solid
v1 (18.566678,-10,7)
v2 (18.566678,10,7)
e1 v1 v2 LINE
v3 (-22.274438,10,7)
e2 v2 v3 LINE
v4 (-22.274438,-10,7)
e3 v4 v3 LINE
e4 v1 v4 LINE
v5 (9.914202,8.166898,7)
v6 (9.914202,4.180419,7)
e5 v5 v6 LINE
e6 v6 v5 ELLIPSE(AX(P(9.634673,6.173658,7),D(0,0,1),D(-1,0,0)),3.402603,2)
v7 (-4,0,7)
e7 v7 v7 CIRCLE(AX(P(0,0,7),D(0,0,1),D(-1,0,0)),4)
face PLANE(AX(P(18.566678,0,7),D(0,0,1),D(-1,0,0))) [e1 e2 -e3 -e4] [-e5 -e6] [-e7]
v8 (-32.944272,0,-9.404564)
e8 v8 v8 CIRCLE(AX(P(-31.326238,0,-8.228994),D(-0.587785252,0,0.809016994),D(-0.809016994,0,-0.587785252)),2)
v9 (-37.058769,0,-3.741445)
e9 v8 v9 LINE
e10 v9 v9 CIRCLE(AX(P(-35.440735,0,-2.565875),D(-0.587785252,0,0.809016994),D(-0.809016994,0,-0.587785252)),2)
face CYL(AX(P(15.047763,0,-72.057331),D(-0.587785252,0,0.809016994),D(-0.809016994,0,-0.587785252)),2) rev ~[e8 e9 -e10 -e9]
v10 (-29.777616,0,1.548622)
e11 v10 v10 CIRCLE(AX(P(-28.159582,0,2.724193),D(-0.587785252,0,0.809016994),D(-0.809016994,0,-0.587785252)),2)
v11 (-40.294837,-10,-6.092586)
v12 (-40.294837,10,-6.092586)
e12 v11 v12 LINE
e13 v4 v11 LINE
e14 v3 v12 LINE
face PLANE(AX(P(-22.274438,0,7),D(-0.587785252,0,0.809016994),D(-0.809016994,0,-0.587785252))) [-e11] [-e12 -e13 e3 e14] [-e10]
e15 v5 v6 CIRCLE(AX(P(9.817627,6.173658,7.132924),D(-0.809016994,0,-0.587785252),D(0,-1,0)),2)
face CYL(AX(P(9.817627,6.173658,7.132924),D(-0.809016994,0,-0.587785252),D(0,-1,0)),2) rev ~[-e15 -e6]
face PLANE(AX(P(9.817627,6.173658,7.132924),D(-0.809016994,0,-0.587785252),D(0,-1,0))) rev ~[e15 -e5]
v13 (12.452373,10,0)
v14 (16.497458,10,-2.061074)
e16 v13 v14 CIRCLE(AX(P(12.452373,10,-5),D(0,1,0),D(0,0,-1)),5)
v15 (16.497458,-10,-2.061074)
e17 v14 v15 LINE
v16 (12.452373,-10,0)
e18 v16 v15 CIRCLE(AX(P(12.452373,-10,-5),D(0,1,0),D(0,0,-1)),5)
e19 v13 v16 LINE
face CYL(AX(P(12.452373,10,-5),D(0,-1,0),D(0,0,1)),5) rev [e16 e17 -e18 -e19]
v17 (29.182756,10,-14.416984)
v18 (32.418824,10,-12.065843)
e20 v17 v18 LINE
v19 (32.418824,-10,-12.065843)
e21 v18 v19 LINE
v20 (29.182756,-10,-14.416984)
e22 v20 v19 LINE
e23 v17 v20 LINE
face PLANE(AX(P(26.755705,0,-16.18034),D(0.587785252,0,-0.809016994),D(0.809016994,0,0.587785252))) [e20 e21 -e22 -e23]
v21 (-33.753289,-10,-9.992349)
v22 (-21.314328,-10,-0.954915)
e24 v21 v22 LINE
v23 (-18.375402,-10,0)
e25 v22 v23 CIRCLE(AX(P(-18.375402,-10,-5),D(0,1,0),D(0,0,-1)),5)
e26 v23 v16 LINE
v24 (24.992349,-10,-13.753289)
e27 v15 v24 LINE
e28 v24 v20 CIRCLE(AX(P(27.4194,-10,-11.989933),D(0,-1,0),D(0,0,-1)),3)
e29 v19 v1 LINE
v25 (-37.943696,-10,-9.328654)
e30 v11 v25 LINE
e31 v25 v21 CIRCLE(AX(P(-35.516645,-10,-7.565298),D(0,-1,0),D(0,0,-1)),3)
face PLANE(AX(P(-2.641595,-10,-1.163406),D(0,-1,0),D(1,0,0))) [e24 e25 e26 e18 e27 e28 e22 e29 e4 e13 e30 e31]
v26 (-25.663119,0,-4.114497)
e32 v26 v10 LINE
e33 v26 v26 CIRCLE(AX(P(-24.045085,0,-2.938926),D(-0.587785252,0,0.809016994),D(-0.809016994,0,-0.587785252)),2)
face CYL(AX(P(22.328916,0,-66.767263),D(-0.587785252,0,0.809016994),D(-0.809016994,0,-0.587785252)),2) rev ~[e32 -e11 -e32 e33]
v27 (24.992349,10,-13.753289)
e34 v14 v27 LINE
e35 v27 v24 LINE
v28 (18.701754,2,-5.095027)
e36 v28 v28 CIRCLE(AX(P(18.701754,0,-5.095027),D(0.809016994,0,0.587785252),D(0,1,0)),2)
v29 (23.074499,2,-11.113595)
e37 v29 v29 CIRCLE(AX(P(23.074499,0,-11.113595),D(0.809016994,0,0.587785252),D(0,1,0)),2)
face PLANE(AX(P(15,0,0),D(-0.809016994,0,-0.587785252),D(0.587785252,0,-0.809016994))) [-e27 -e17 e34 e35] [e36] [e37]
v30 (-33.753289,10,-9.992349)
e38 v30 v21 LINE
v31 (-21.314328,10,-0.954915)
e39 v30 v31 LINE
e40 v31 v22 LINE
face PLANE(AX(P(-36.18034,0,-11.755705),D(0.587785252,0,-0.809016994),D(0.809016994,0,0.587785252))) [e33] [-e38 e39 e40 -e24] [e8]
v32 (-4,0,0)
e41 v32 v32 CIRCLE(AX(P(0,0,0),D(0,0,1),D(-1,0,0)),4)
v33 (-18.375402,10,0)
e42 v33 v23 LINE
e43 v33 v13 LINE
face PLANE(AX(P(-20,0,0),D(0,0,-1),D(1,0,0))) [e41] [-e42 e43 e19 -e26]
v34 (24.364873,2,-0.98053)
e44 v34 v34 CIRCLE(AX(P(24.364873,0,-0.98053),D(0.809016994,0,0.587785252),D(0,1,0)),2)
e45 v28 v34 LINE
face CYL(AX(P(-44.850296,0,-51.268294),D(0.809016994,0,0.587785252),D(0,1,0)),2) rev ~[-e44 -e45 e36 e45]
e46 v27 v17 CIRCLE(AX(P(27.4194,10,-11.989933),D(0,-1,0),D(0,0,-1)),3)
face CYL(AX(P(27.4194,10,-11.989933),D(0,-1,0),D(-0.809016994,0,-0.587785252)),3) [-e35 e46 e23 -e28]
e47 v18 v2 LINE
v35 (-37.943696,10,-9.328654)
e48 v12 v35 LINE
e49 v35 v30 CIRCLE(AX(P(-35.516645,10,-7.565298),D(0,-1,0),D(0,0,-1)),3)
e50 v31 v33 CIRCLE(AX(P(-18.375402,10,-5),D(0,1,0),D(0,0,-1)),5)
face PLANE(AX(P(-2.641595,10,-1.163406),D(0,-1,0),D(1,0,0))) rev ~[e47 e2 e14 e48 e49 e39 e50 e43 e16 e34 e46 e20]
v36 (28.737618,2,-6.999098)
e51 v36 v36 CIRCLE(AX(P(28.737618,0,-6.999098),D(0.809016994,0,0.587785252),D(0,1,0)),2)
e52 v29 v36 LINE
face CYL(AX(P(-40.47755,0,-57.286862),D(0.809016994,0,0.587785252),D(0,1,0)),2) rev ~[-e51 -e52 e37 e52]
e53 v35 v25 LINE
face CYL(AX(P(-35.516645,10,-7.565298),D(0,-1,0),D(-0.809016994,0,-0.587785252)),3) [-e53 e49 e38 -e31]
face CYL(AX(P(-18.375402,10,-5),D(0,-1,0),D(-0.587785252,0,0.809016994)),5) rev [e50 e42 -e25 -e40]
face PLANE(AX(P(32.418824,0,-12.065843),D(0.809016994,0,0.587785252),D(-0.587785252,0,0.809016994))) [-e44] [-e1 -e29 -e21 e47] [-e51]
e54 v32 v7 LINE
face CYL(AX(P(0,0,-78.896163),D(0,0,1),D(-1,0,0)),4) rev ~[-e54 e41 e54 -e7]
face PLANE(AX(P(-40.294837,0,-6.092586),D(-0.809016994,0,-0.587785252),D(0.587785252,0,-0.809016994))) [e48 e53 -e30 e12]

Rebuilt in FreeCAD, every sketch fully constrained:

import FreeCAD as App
import Part
import Sketcher
Q = App.Units.Quantity


def edges_at(feature, points):
    """Names of the edges that pass closest to the given points."""
    edges = feature.Shape.Edges
    near = lambda p: min(range(len(edges)), key=lambda i: edges[i].distToShape(Part.Vertex(*p))[0])
    return sorted({f"Edge{near(p) + 1}" for p in points})

doc = App.newDocument("Part")
body = doc.addObject("PartDesign::Body", "Body")

# Sketch on XZ plane
sketch1 = doc.addObject("Sketcher::SketchObject", "Sketch")
body.addObject(sketch1)
sketch1.AttachmentSupport = (doc.XZ_Plane, [""])
sketch1.MapMode = "FlatFace"
sketch1.addGeometry(Part.LineSegment(App.Vector(-40, -6, 0), App.Vector(-36, -12, 0)), False)
sketch1.addGeometry(Part.LineSegment(App.Vector(-36, -12, 0), App.Vector(-20, 0, 0)), False)
sketch1.addGeometry(Part.LineSegment(App.Vector(-20, 0, 0), App.Vector(15, 0, 0)), False)
sketch1.addGeometry(Part.LineSegment(App.Vector(15, 0, 0), App.Vector(27, -16, 0)), False)
sketch1.addGeometry(Part.LineSegment(App.Vector(27, -16, 0), App.Vector(32, -12, 0)), False)
sketch1.addGeometry(Part.LineSegment(App.Vector(32, -12, 0), App.Vector(19, 7, 0)), False)
sketch1.addGeometry(Part.LineSegment(App.Vector(19, 7, 0), App.Vector(-22, 7, 0)), False)
sketch1.addGeometry(Part.LineSegment(App.Vector(-22, 7, 0), App.Vector(-40, -6, 0)), False)
sketch1.addConstraint(Sketcher.Constraint("Coincident", 0, 2, 1, 1))
sketch1.addConstraint(Sketcher.Constraint("Coincident", 1, 2, 2, 1))
sketch1.addConstraint(Sketcher.Constraint("Coincident", 2, 2, 3, 1))
sketch1.addConstraint(Sketcher.Constraint("Coincident", 3, 2, 4, 1))
sketch1.addConstraint(Sketcher.Constraint("Coincident", 4, 2, 5, 1))
sketch1.addConstraint(Sketcher.Constraint("Coincident", 5, 2, 6, 1))
sketch1.addConstraint(Sketcher.Constraint("Coincident", 6, 2, 7, 1))
sketch1.addConstraint(Sketcher.Constraint("Coincident", 7, 2, 0, 1))
sketch1.addConstraint(Sketcher.Constraint("Horizontal", 2))
sketch1.addConstraint(Sketcher.Constraint("Horizontal", 6))
sketch1.addConstraint(Sketcher.Constraint("PointOnObject", 1, 2, -1))
sketch1.addConstraint(Sketcher.Constraint("Perpendicular", 0, 1))
sketch1.addConstraint(Sketcher.Constraint("Perpendicular", 1, 3))
sketch1.addConstraint(Sketcher.Constraint("Perpendicular", 3, 4))
sketch1.addConstraint(Sketcher.Constraint("Perpendicular", 4, 5))
sketch1.addConstraint(Sketcher.Constraint("Perpendicular", 5, 7))
sketch1.addConstraint(Sketcher.Constraint("Equal", 1, 3))
sketch1.addConstraint(Sketcher.Constraint("Equal", 0, 4))
sketch1.addConstraint(Sketcher.Constraint("DistanceX", 2, 1, 2, 2, 35.0))
sketch1.addConstraint(Sketcher.Constraint("Angle", 0, Q("-54 deg")))
sketch1.addConstraint(Sketcher.Constraint("Distance", 0, 7.0))
sketch1.addConstraint(Sketcher.Constraint("Distance", 1, 20.0))
sketch1.addConstraint(Sketcher.Constraint("DistanceX", 1, 2, -1, 1, 20.0))
sketch1.addConstraint(Sketcher.Constraint("DistanceY", -1, 1, 5, 2, 7.0))
pad1 = doc.addObject("PartDesign::Pad", "Pad")
body.addObject(pad1)
pad1.Profile = sketch1
pad1.Type = "TwoLengths"
pad1.Length = 10
pad1.Length2 = 10

# Sketch on an angled plane
sketch2 = doc.addObject("Sketcher::SketchObject", "Sketch001")
body.addObject(sketch2)
sketch2.Placement = App.Placement(App.Vector(-6.90983, 0, 9.510565), App.Rotation(App.Vector(0.809016994, 0, 0.587785252), App.Vector(0, -0.999999999, 0), App.Vector(0.587785252, 0, -0.809016994), "ZXY"))
sketch2.addGeometry(Part.Circle(App.Vector(0, -37.9, 0), App.Vector(0, 0, 1), 2), False)
sketch2.addGeometry(Part.Circle(App.Vector(0, -24, 0), App.Vector(0, 0, 1), 2), False)
sketch2.addGeometry(Part.Circle(App.Vector(-30.2, 0, 0), App.Vector(0, 0, 1), 2), False)
sketch2.addGeometry(Part.Circle(App.Vector(-21.2, 0, 0), App.Vector(0, 0, 1), 2), False)
sketch2.addConstraint(Sketcher.Constraint("Equal", 0, 1))
sketch2.addConstraint(Sketcher.Constraint("Equal", 1, 2))
sketch2.addConstraint(Sketcher.Constraint("Equal", 2, 3))
sketch2.addConstraint(Sketcher.Constraint("PointOnObject", 0, 3, -2))
sketch2.addConstraint(Sketcher.Constraint("PointOnObject", 1, 3, -2))
sketch2.addConstraint(Sketcher.Constraint("PointOnObject", 2, 3, -1))
sketch2.addConstraint(Sketcher.Constraint("PointOnObject", 3, 3, -1))
sketch2.addConstraint(Sketcher.Constraint("Diameter", 0, 4.0))
sketch2.addConstraint(Sketcher.Constraint("DistanceX", 2, 3, 3, 3, 9.0))
sketch2.addConstraint(Sketcher.Constraint("DistanceX", 2, 3, -1, 1, 30.18034))
sketch2.addConstraint(Sketcher.Constraint("DistanceY", 0, 3, -1, 1, 37.853277))
sketch2.addConstraint(Sketcher.Constraint("DistanceY", 1, 3, -1, 1, 24.008233))
doc.recompute()
hole = doc.addObject("PartDesign::Hole", "Hole")
body.addObject(hole)
hole.Profile = sketch2
hole.ThreadType = "None"
hole.Diameter = 4
hole.DepthType = "ThroughAll"

# Sketch on an angled plane
sketch3 = doc.addObject("Sketcher::SketchObject", "Sketch002")
body.addObject(sketch3)
sketch3.Placement = App.Placement(App.Vector(9.817627, 0, 7.132924), App.Rotation(App.Vector(0, -1, 0), App.Vector(-0.587785252, 0, 0.809016994), App.Vector(-0.809016994, 0, -0.587785252), "ZXY"))
sketch3.addGeometry(Part.Circle(App.Vector(-6.2, 0, 0), App.Vector(0, 0, 1), 2), False)
sketch3.addGeometry(Part.Circle(App.Vector(16.1, 0, 0), App.Vector(0, 0, 1), 2), False)
sketch3.addConstraint(Sketcher.Constraint("Equal", 0, 1))
sketch3.addConstraint(Sketcher.Constraint("PointOnObject", 0, 3, -1))
sketch3.addConstraint(Sketcher.Constraint("PointOnObject", 1, 3, -1))
sketch3.addConstraint(Sketcher.Constraint("Diameter", 0, 4.0))
sketch3.addConstraint(Sketcher.Constraint("DistanceX", 0, 3, -1, 1, 6.173658))
sketch3.addConstraint(Sketcher.Constraint("DistanceX", -1, 1, 1, 3, 16.058304))
pocket1 = doc.addObject("PartDesign::Pocket", "Pocket")
body.addObject(pocket1)
pocket1.Profile = sketch3
pocket1.Type = "ThroughAll"

# Sketch on XY plane
sketch4 = doc.addObject("Sketcher::SketchObject", "Sketch003")
body.addObject(sketch4)
sketch4.AttachmentSupport = (doc.XY_Plane, [""])
sketch4.MapMode = "FlatFace"
sketch4.addGeometry(Part.Circle(App.Vector(0, 0, 0), App.Vector(0, 0, 1), 4), False)
sketch4.addConstraint(Sketcher.Constraint("Coincident", 0, 3, -1, 1))
sketch4.addConstraint(Sketcher.Constraint("Diameter", 0, 8.0))
doc.recompute()
hole2 = doc.addObject("PartDesign::Hole", "Hole001")
body.addObject(hole2)
hole2.Profile = sketch4
hole2.ThreadType = "None"
hole2.Diameter = 8
hole2.DepthType = "ThroughAll"
hole2.Reversed = True
doc.recompute()

fillet = doc.addObject("PartDesign::Fillet", "Fillet")
body.addObject(fillet)
fillet.Base = (hole2, edges_at(hole2, [(-36.18, 0, -11.756), (26.756, 0, -16.18)]))
fillet.Radius = 3
doc.recompute()

fillet2 = doc.addObject("PartDesign::Fillet", "Fillet001")
body.addObject(fillet2)
fillet2.Base = (fillet, edges_at(fillet, [(-20, 0, 0), (15, 0, 0)]))
fillet2.Radius = 5

# Sketch on an angled plane
sketch5 = doc.addObject("Sketcher::SketchObject", "Sketch004")
body.addObject(sketch5)
sketch5.Placement = App.Placement(App.Vector(9.817627, 0, 7.132924), App.Rotation(App.Vector(0, -1, 0), App.Vector(-0.587785252, 0, 0.809016994), App.Vector(-0.809016994, 0, -0.587785252), "ZXY"))
sketch5.addGeometry(Part.Circle(App.Vector(0, -15.1, 0), App.Vector(0, 0, 1), 2), False)
sketch5.addGeometry(Part.Circle(App.Vector(0, -22.6, 0), App.Vector(0, 0, 1), 2), False)
sketch5.addConstraint(Sketcher.Constraint("Equal", 0, 1))
sketch5.addConstraint(Sketcher.Constraint("PointOnObject", 0, 3, -2))
sketch5.addConstraint(Sketcher.Constraint("PointOnObject", 1, 3, -2))
sketch5.addConstraint(Sketcher.Constraint("Diameter", 0, 4.0))
sketch5.addConstraint(Sketcher.Constraint("DistanceY", 0, 3, -1, 1, 15.114578))
sketch5.addConstraint(Sketcher.Constraint("DistanceY", 1, 3, 0, 3, 7.439359))
doc.recompute()
hole3 = doc.addObject("PartDesign::Hole", "Hole002")
body.addObject(hole3)
hole3.Profile = sketch5
hole3.ThreadType = "None"
hole3.Diameter = 4
hole3.DepthType = "ThroughAll"

doc.recompute()
